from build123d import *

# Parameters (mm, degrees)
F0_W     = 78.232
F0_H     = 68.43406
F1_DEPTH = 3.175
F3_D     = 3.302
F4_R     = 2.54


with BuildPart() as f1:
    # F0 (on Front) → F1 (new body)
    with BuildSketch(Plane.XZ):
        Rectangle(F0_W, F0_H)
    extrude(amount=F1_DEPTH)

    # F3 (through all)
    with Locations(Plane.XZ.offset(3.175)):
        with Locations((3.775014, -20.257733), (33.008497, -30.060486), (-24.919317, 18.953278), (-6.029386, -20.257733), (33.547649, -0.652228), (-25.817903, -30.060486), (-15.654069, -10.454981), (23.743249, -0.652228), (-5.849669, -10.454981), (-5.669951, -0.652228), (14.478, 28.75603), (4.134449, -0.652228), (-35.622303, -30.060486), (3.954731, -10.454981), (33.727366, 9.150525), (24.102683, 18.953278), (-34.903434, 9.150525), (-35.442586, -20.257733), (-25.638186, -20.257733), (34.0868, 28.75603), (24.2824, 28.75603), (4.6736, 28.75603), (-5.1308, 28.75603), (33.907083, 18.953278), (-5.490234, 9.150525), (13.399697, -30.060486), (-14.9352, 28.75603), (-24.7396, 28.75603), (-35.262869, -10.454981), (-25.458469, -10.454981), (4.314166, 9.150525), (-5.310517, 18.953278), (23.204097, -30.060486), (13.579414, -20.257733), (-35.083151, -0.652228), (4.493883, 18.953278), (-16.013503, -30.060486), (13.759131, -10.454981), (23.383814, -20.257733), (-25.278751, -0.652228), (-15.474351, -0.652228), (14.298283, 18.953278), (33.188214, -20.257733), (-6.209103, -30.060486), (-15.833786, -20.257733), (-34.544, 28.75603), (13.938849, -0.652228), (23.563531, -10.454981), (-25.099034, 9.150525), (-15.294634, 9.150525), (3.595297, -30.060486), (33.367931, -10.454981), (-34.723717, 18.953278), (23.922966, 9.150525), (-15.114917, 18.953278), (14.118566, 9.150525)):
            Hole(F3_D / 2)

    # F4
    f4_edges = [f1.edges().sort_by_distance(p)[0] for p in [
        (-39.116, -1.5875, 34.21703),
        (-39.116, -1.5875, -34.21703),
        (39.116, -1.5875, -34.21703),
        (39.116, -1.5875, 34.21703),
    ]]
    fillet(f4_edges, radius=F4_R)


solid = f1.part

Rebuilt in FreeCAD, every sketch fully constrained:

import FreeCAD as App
import Part
import Sketcher
from FreeCAD import Vector
Q = App.Units.Quantity


def edges_at(feature, points):
    """Names of the edges that pass closest to the given points."""
    edges = feature.Shape.Edges
    near = lambda p: min(range(len(edges)), key=lambda i: edges[i].distToShape(Part.Vertex(*p))[0])
    return sorted({f"Edge{near(p) + 1}" for p in points})

doc = App.newDocument("Part")
body = doc.addObject("PartDesign::Body", "Body")

# Sketch on XZ plane
sketch1 = body.newObject("Sketcher::SketchObject", "Sketch")
sketch1.AttachmentSupport = (doc.getObject("XZ_Plane"), [""])
sketch1.MapMode = "FlatFace"
sketch1.addGeometry([
    Part.LineSegment(Vector(-39, 34, 0), Vector(-39, -34, 0)),
    Part.LineSegment(Vector(-39, -34, 0), Vector(39, -34, 0)),
    Part.LineSegment(Vector(39, -34, 0), Vector(39, 34, 0)),
    Part.LineSegment(Vector(39, 34, 0), Vector(-39, 34, 0)),
], False)
sketch1.addConstraint([
    Sketcher.Constraint("Coincident", 0, 2, 1, 1),
    Sketcher.Constraint("Coincident", 1, 2, 2, 1),
    Sketcher.Constraint("Coincident", 2, 2, 3, 1),
    Sketcher.Constraint("Coincident", 3, 2, 0, 1),
    Sketcher.Constraint("Vertical", 0),
    Sketcher.Constraint("Horizontal", 1),
    Sketcher.Constraint("Vertical", 2),
    Sketcher.Constraint("Horizontal", 3),
    Sketcher.Constraint("Symmetric", 0, 2, 2, 2, -1, 1),
    Sketcher.Constraint("DistanceX", 1, 1, 1, 2, Q("3.08 in")),
    Sketcher.Constraint("DistanceY", 0, 2, 0, 1, Q("68.43406 mm")),
])
pad1 = body.newObject("PartDesign::Pad", "Pad")
pad1.Profile = sketch1
pad1.Length = Q("0.125 in")

# Sketch on XZ plane
sketch2 = body.newObject("Sketcher::SketchObject", "Sketch001")
sketch2.AttachmentSupport = (doc.getObject("XZ_Plane"), [""])
sketch2.MapMode = "FlatFace"
sketch2.AttachmentOffset = App.Placement(Vector(0, 0, 0.125 * 25.4), App.Rotation())
sketch2.addGeometry([
    Part.Circle(Vector(3.8, -20.3, 0), Vector(0, 0, 1), 1.7),  # 0
    Part.Circle(Vector(33, -30.1, 0), Vector(0, 0, 1), 1.7),  # 1
    Part.Circle(Vector(-24.9, 19, 0), Vector(0, 0, 1), 1.7),  # 2
    Part.Circle(Vector(-6, -20.3, 0), Vector(0, 0, 1), 1.7),  # 3
    Part.Circle(Vector(33.5, -0.7, 0), Vector(0, 0, 1), 1.7),  # 4
    Part.Circle(Vector(-25.8, -30.1, 0), Vector(0, 0, 1), 1.7),  # 5
    Part.Circle(Vector(-15.7, -10.5, 0), Vector(0, 0, 1), 1.7),  # 6
    Part.Circle(Vector(23.7, -0.7, 0), Vector(0, 0, 1), 1.7),  # 7
    Part.Circle(Vector(-5.8, -10.5, 0), Vector(0, 0, 1), 1.7),  # 8
    Part.Circle(Vector(-5.7, -0.7, 0), Vector(0, 0, 1), 1.7),  # 9
    Part.Circle(Vector(14.5, 28.8, 0), Vector(0, 0, 1), 1.7),  # 10
    Part.Circle(Vector(4.1, -0.7, 0), Vector(0, 0, 1), 1.7),  # 11
    Part.Circle(Vector(-35.6, -30.1, 0), Vector(0, 0, 1), 1.7),  # 12
    Part.Circle(Vector(4, -10.5, 0), Vector(0, 0, 1), 1.7),  # 13
    Part.Circle(Vector(33.7, 9.2, 0), Vector(0, 0, 1), 1.7),  # 14
    Part.Circle(Vector(24.1, 19, 0), Vector(0, 0, 1), 1.7),  # 15
    Part.Circle(Vector(-34.9, 9.2, 0), Vector(0, 0, 1), 1.7),  # 16
    Part.Circle(Vector(-35.4, -20.3, 0), Vector(0, 0, 1), 1.7),  # 17
    Part.Circle(Vector(-25.6, -20.3, 0), Vector(0, 0, 1), 1.7),  # 18
    Part.Circle(Vector(34.1, 28.8, 0), Vector(0, 0, 1), 1.7),  # 19
    Part.Circle(Vector(24.3, 28.8, 0), Vector(0, 0, 1), 1.7),  # 20
    Part.Circle(Vector(4.7, 28.8, 0), Vector(0, 0, 1), 1.7),  # 21
    Part.Circle(Vector(-5.1, 28.8, 0), Vector(0, 0, 1), 1.7),  # 22
    Part.Circle(Vector(33.9, 19, 0), Vector(0, 0, 1), 1.7),  # 23
    Part.Circle(Vector(-5.5, 9.2, 0), Vector(0, 0, 1), 1.7),  # 24
    Part.Circle(Vector(13.4, -30.1, 0), Vector(0, 0, 1), 1.7),  # 25
    Part.Circle(Vector(-14.9, 28.8, 0), Vector(0, 0, 1), 1.7),  # 26
    Part.Circle(Vector(-24.7, 28.8, 0), Vector(0, 0, 1), 1.7),  # 27
    Part.Circle(Vector(-35.3, -10.5, 0), Vector(0, 0, 1), 1.7),  # 28
    Part.Circle(Vector(-25.5, -10.5, 0), Vector(0, 0, 1), 1.7),  # 29
    Part.Circle(Vector(4.3, 9.2, 0), Vector(0, 0, 1), 1.7),  # 30
    Part.Circle(Vector(-5.3, 19, 0), Vector(0, 0, 1), 1.7),  # 31
    Part.Circle(Vector(23.2, -30.1, 0), Vector(0, 0, 1), 1.7),  # 32
    Part.Circle(Vector(13.6, -20.3, 0), Vector(0, 0, 1), 1.7),  # 33
    Part.Circle(Vector(-35.1, -0.7, 0), Vector(0, 0, 1), 1.7),  # 34
    Part.Circle(Vector(4.5, 19, 0), Vector(0, 0, 1), 1.7),  # 35
    Part.Circle(Vector(-16, -30.1, 0), Vector(0, 0, 1), 1.7),  # 36
    Part.Circle(Vector(13.8, -10.5, 0), Vector(0, 0, 1), 1.7),  # 37
    Part.Circle(Vector(23.4, -20.3, 0), Vector(0, 0, 1), 1.7),  # 38
    Part.Circle(Vector(-25.3, -0.7, 0), Vector(0, 0, 1), 1.7),  # 39
    Part.Circle(Vector(-15.5, -0.7, 0), Vector(0, 0, 1), 1.7),  # 40
    Part.Circle(Vector(14.3, 19, 0), Vector(0, 0, 1), 1.7),  # 41
    Part.Circle(Vector(33.2, -20.3, 0), Vector(0, 0, 1), 1.7),  # 42
    Part.Circle(Vector(-6.2, -30.1, 0), Vector(0, 0, 1), 1.7),  # 43
    Part.Circle(Vector(-15.8, -20.3, 0), Vector(0, 0, 1), 1.7),  # 44
    Part.Circle(Vector(-34.5, 28.8, 0), Vector(0, 0, 1), 1.7),  # 45
    Part.Circle(Vector(13.9, -0.7, 0), Vector(0, 0, 1), 1.7),  # 46
    Part.Circle(Vector(23.6, -10.5, 0), Vector(0, 0, 1), 1.7),  # 47
    Part.Circle(Vector(-25.1, 9.2, 0), Vector(0, 0, 1), 1.7),  # 48
    Part.Circle(Vector(-15.3, 9.2, 0), Vector(0, 0, 1), 1.7),  # 49
    Part.Circle(Vector(3.6, -30.1, 0), Vector(0, 0, 1), 1.7),  # 50
    Part.Circle(Vector(33.4, -10.5, 0), Vector(0, 0, 1), 1.7),  # 51
    Part.Circle(Vector(-34.7, 19, 0), Vector(0, 0, 1), 1.7),  # 52
    Part.Circle(Vector(23.9, 9.2, 0), Vector(0, 0, 1), 1.7),  # 53
    Part.Circle(Vector(-15.1, 19, 0), Vector(0, 0, 1), 1.7),  # 54
    Part.Circle(Vector(14.1, 9.2, 0), Vector(0, 0, 1), 1.7),  # 55
], False)
sketch2.addConstraint([
    Sketcher.Constraint("Equal", 0, 1),
    Sketcher.Constraint("Equal", 1, 2),
    Sketcher.Constraint("Equal", 2, 3),
    Sketcher.Constraint("Equal", 3, 4),
    Sketcher.Constraint("Equal", 4, 5),
    Sketcher.Constraint("Equal", 5, 6),
    Sketcher.Constraint("Equal", 6, 7),
    Sketcher.Constraint("Equal", 7, 8),
    Sketcher.Constraint("Equal", 8, 9),
    Sketcher.Constraint("Equal", 9, 10),
    Sketcher.Constraint("Equal", 10, 11),
    Sketcher.Constraint("Equal", 11, 12),
    Sketcher.Constraint("Equal", 12, 13),
    Sketcher.Constraint("Equal", 13, 14),
    Sketcher.Constraint("Equal", 14, 15),
    Sketcher.Constraint("Equal", 15, 16),
    Sketcher.Constraint("Equal", 16, 17),
    Sketcher.Constraint("Equal", 17, 18),
    Sketcher.Constraint("Equal", 18, 19),
    Sketcher.Constraint("Equal", 19, 20),
    Sketcher.Constraint("Equal", 20, 21),
    Sketcher.Constraint("Equal", 21, 22),
    Sketcher.Constraint("Equal", 22, 23),
    Sketcher.Constraint("Equal", 23, 24),
    Sketcher.Constraint("Equal", 24, 25),
    Sketcher.Constraint("Equal", 25, 26),
    Sketcher.Constraint("Equal", 26, 27),
    Sketcher.Constraint("Equal", 27, 28),
    Sketcher.Constraint("Equal", 28, 29),
    Sketcher.Constraint("Equal", 29, 30),
    Sketcher.Constraint("Equal", 30, 31),
    Sketcher.Constraint("Equal", 31, 32),
    Sketcher.Constraint("Equal", 32, 33),
    Sketcher.Constraint("Equal", 33, 34),
    Sketcher.Constraint("Equal", 34, 35),
    Sketcher.Constraint("Equal", 35, 36),
    Sketcher.Constraint("Equal", 36, 37),
    Sketcher.Constraint("Equal", 37, 38),
    Sketcher.Constraint("Equal", 38, 39),
    Sketcher.Constraint("Equal", 39, 40),
    Sketcher.Constraint("Equal", 40, 41),
    Sketcher.Constraint("Equal", 41, 42),
    Sketcher.Constraint("Equal", 42, 43),
    Sketcher.Constraint("Equal", 43, 44),
    Sketcher.Constraint("Equal", 44, 45),
    Sketcher.Constraint("Equal", 45, 46),
    Sketcher.Constraint("Equal", 46, 47),
    Sketcher.Constraint("Equal", 47, 48),
    Sketcher.Constraint("Equal", 48, 49),
    Sketcher.Constraint("Equal", 49, 50),
    Sketcher.Constraint("Equal", 50, 51),
    Sketcher.Constraint("Equal", 51, 52),
    Sketcher.Constraint("Equal", 52, 53),
    Sketcher.Constraint("Equal", 53, 54),
    Sketcher.Constraint("Equal", 54, 55),
    Sketcher.Constraint("Horizontal", 0, 3, 3, 3),
    Sketcher.Constraint("Horizontal", 1, 3, 5, 3),
    Sketcher.Constraint("Horizontal", 4, 3, 7, 3),
    Sketcher.Constraint("Horizontal", 6, 3, 8, 3),
    Sketcher.Constraint("Horizontal", 7, 3, 9, 3),
    Sketcher.Constraint("Horizontal", 9, 3, 11, 3),
    Sketcher.Constraint("Horizontal", 5, 3, 12, 3),
    Sketcher.Constraint("Horizontal", 8, 3, 13, 3),
    Sketcher.Constraint("Horizontal", 2, 3, 15, 3),
    Sketcher.Constraint("Horizontal", 14, 3, 16, 3),
    Sketcher.Constraint("Horizontal", 3, 3, 17, 3),
    Sketcher.Constraint("Horizontal", 17, 3, 18, 3),
    Sketcher.Constraint("Horizontal", 10, 3, 19, 3),
    Sketcher.Constraint("Horizontal", 19, 3, 20, 3),
    Sketcher.Constraint("Horizontal", 20, 3, 21, 3),
    Sketcher.Constraint("Horizontal", 21, 3, 22, 3),
    Sketcher.Constraint("Horizontal", 15, 3, 23, 3),
    Sketcher.Constraint("Horizontal", 16, 3, 24, 3),
    Sketcher.Constraint("Horizontal", 12, 3, 25, 3),
    Sketcher.Constraint("Horizontal", 22, 3, 26, 3),
    Sketcher.Constraint("Horizontal", 26, 3, 27, 3),
    Sketcher.Constraint("Horizontal", 13, 3, 28, 3),
    Sketcher.Constraint("Horizontal", 28, 3, 29, 3),
    Sketcher.Constraint("Horizontal", 24, 3, 30, 3),
    Sketcher.Constraint("Horizontal", 23, 3, 31, 3),
    Sketcher.Constraint("Horizontal", 25, 3, 32, 3),
    Sketcher.Constraint("Horizontal", 18, 3, 33, 3),
    Sketcher.Constraint("Horizontal", 11, 3, 34, 3),
    Sketcher.Constraint("Horizontal", 31, 3, 35, 3),
    Sketcher.Constraint("Horizontal", 32, 3, 36, 3),
    Sketcher.Constraint("Horizontal", 29, 3, 37, 3),
    Sketcher.Constraint("Horizontal", 33, 3, 38, 3),
    Sketcher.Constraint("Horizontal", 34, 3, 39, 3),
    Sketcher.Constraint("Horizontal", 39, 3, 40, 3),
    Sketcher.Constraint("Horizontal", 35, 3, 41, 3),
    Sketcher.Constraint("Horizontal", 38, 3, 42, 3),
    Sketcher.Constraint("Horizontal", 36, 3, 43, 3),
    Sketcher.Constraint("Horizontal", 42, 3, 44, 3),
    Sketcher.Constraint("Horizontal", 27, 3, 45, 3),
    Sketcher.Constraint("Horizontal", 40, 3, 46, 3),
    Sketcher.Constraint("Horizontal", 37, 3, 47, 3),
    Sketcher.Constraint("Horizontal", 30, 3, 48, 3),
    Sketcher.Constraint("Horizontal", 48, 3, 49, 3),
    Sketcher.Constraint("Horizontal", 43, 3, 50, 3),
    Sketcher.Constraint("Horizontal", 47, 3, 51, 3),
    Sketcher.Constraint("Horizontal", 41, 3, 52, 3),
    Sketcher.Constraint("Horizontal", 49, 3, 53, 3),
    Sketcher.Constraint("Horizontal", 52, 3, 54, 3),
    Sketcher.Constraint("Horizontal", 53, 3, 55, 3),
    Sketcher.Constraint("Diameter", 0, Q("0.13 in")),
    Sketcher.Constraint("DistanceX", -1, 1, 10, 3, Q("0.57 in")),
    Sketcher.Constraint("DistanceX", 45, 3, -1, 1, Q("1.36 in")),
    Sketcher.Constraint("DistanceX", -1, 1, 19, 3, Q("1.342 in")),
    Sketcher.Constraint("DistanceX", -1, 1, 20, 3, Q("0.956 in")),
    Sketcher.Constraint("DistanceX", -1, 1, 21, 3, Q("0.184 in")),
    Sketcher.Constraint("DistanceX", 22, 3, -1, 1, Q("0.202 in")),
    Sketcher.Constraint("DistanceX", 26, 3, -1, 1, Q("0.588 in")),
    Sketcher.Constraint("DistanceX", 27, 3, -1, 1, Q("0.974 in")),
    Sketcher.Constraint("DistanceX", 3, 3, 0, 3, Q("0.386 in")),
    Sketcher.Constraint("DistanceX", 5, 3, 1, 3, Q("2.316 in")),
    Sketcher.Constraint("DistanceX", 7, 3, 4, 3, Q("0.386 in")),
    Sketcher.Constraint("DistanceX", 6, 3, 8, 3, Q("0.386 in")),
    Sketcher.Constraint("DistanceX", 9, 3, 11, 3, Q("0.386 in")),
    Sketcher.Constraint("DistanceX", 11, 3, 7, 3, Q("0.772 in")),
    Sketcher.Constraint("DistanceX", 12, 3, 5, 3, Q("0.386 in")),
    Sketcher.Constraint("DistanceX", 8, 3, 13, 3, Q("0.386 in")),
    Sketcher.Constraint("DistanceX", 17, 3, 3, 3, Q("1.158 in")),
    Sketcher.Constraint("DistanceX", 17, 3, 18, 3, Q("0.386 in")),
    Sketcher.Constraint("DistanceX", 15, 3, 23, 3, Q("0.386 in")),
    Sketcher.Constraint("DistanceX", 25, 3, 1, 3, Q("0.772 in")),
    Sketcher.Constraint("DistanceX", 28, 3, 6, 3, Q("0.772 in")),
    Sketcher.Constraint("DistanceX", 29, 3, 6, 3, Q("0.386 in")),
    Sketcher.Constraint("DistanceX", 24, 3, 30, 3, Q("0.386 in")),
    Sketcher.Constraint("DistanceX", 32, 3, 1, 3, Q("0.386 in")),
    Sketcher.Constraint("DistanceX", 0, 3, 33, 3, Q("0.386 in")),
    Sketcher.Constraint("DistanceX", 31, 3, 35, 3, Q("0.386 in")),
    Sketcher.Constraint("DistanceX", 5, 3, 36, 3, Q("0.386 in")),
    Sketcher.Constraint("DistanceX", 13, 3, 37, 3, Q("0.386 in")),
    Sketcher.Constraint("DistanceX", 33, 3, 38, 3, Q("0.386 in")),
    Sketcher.Constraint("DistanceX", 34, 3, 39, 3, Q("0.386 in")),
    Sketcher.Constraint("DistanceX", 39, 3, 40, 3, Q("0.386 in")),
    Sketcher.Constraint("DistanceX", 40, 3, 9, 3, Q("0.386 in")),
    Sketcher.Constraint("DistanceX", 41, 3, 15, 3, Q("0.386 in")),
    Sketcher.Constraint("DistanceX", 35, 3, 41, 3, Q("0.386 in")),
    Sketcher.Constraint("DistanceX", 38, 3, 42, 3, Q("0.386 in")),
    Sketcher.Constraint("DistanceX", 36, 3, 43, 3, Q("0.386 in")),
    Sketcher.Constraint("DistanceX", 44, 3, 3, 3, Q("0.386 in")),
    Sketcher.Constraint("DistanceX", 46, 3, 7, 3, Q("0.386 in")),
    Sketcher.Constraint("DistanceX", 37, 3, 47, 3, Q("0.386 in")),
    Sketcher.Constraint("DistanceX", 16, 3, 48, 3, Q("0.386 in")),
    Sketcher.Constraint("DistanceX", 48, 3, 49, 3, Q("0.386 in")),
    Sketcher.Constraint("DistanceX", 49, 3, 24, 3, Q("0.386 in")),
    Sketcher.Constraint("DistanceX", 50, 3, 25, 3, Q("0.386 in")),
    Sketcher.Constraint("DistanceX", 47, 3, 51, 3, Q("0.386 in")),
    Sketcher.Constraint("DistanceX", 52, 3, 2, 3, Q("0.386 in")),
    Sketcher.Constraint("DistanceX", 53, 3, 14, 3, Q("0.386 in")),
    Sketcher.Constraint("DistanceX", 2, 3, 54, 3, Q("0.386 in")),
    Sketcher.Constraint("DistanceX", 54, 3, 31, 3, Q("0.386 in")),
    Sketcher.Constraint("DistanceX", 30, 3, 55, 3, Q("0.386 in")),
    Sketcher.Constraint("DistanceX", 55, 3, 53, 3, Q("0.386 in")),
    Sketcher.Constraint("DistanceY", -1, 1, 2, 3, Q("18.953278 mm")),
    Sketcher.Constraint("DistanceX", -1, 1, 4, 3, Q("33.547649 mm")),
    Sketcher.Constraint("DistanceY", 4, 3, -1, 1, Q("0.652228 mm")),
    Sketcher.Constraint("DistanceX", 6, 3, -1, 1, Q("15.654069 mm")),
    Sketcher.Constraint("DistanceY", 6, 3, -1, 1, Q("10.454981 mm")),
    Sketcher.Constraint("DistanceY", -1, 1, 10, 3, Q("28.75603 mm")),
    Sketcher.Constraint("DistanceX", 2, 3, 0, 3, Q("28.694331 mm")),
    Sketcher.Constraint("DistanceY", 0, 3, 2, 3, Q("39.211011 mm")),
    Sketcher.Constraint("DistanceY", 1, 3, 4, 3, Q("29.408258 mm")),
    Sketcher.Constraint("DistanceX", 12, 3, 16, 3, Q("0.718869 mm")),
    Sketcher.Constraint("DistanceY", 12, 3, 16, 3, Q("39.211011 mm")),
    Sketcher.Constraint("DistanceX", 32, 3, 7, 3, Q("0.539152 mm")),
    Sketcher.Constraint("DistanceX", -1, 1, 0, 3, Q("3.775014 mm")),
])
doc.recompute()
hole = body.newObject("PartDesign::Hole", "Hole")
hole.Profile = sketch2
hole.ThreadType = "None"
hole.Diameter = Q("0.13 in")
hole.DepthType = "ThroughAll"
doc.recompute()

fillet = body.newObject("PartDesign::Fillet", "Fillet")
fillet.Base = (hole, edges_at(hole, [
    (-39.116, -1.587, 34.217),
    (-39.116, -1.587, -34.217),
    (39.116, -1.587, -34.217),
    (39.116, -1.587, 34.217),
]))
fillet.Radius = Q("0.1 in")

doc.recompute()
